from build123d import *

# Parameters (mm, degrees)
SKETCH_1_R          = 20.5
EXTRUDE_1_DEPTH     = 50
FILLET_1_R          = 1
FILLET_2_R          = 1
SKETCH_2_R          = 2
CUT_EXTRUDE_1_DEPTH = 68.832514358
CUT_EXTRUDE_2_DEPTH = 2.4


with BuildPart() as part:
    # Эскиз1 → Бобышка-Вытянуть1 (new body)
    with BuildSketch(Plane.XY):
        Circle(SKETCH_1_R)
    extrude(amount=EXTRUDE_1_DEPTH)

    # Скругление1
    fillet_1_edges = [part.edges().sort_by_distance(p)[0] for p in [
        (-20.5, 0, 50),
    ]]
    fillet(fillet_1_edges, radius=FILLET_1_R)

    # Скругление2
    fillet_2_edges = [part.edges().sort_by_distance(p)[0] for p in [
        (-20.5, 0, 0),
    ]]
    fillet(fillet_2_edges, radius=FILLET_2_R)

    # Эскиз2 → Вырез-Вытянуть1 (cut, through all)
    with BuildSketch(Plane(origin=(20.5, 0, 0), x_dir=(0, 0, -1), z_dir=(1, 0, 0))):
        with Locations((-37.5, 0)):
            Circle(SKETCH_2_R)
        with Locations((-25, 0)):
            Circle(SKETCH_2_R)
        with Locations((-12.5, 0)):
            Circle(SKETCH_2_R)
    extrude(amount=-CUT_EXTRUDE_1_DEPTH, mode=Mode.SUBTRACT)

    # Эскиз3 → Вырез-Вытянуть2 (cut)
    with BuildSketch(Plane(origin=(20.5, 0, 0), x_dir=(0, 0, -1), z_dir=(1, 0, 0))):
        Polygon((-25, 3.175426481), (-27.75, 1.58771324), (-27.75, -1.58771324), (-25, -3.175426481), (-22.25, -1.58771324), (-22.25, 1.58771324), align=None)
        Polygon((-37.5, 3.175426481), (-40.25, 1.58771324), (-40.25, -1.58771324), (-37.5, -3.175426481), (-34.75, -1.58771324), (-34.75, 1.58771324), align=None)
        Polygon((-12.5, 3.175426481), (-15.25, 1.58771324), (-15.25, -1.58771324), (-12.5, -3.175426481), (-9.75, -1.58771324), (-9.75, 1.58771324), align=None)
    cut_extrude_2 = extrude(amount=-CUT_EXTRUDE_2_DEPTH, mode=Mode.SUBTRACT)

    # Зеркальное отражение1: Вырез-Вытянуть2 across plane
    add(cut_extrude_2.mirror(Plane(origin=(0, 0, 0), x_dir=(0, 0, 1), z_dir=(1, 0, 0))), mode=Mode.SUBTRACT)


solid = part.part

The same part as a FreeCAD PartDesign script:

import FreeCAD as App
import Part
import Sketcher

V = App.Vector
Q = App.Units.Quantity


def edges_at(feature, points):
    """Names of the edges that pass closest to the given points."""
    edges = feature.Shape.Edges
    near = lambda p: min(range(len(edges)), key=lambda i: edges[i].distToShape(Part.Vertex(*p))[0])
    return sorted({f"Edge{near(p) + 1}" for p in points})

doc = App.newDocument("Part")
params = doc.addObject("Spreadsheet::Sheet", "Params")
for row, (alias, value) in enumerate([
    ("sketch1_diameter", "41 mm"),
    ("pad1_length", "50 mm"),
    ("fillet_radius", "1 mm"),
    ("fillet2_radius", "1 mm"),
    ("sketch2_diameter", "4 mm"),
    ("pocket2_length", "2.4 mm"),
], start=1):
    params.set(f"A{row}", alias)
    params.set(f"B{row}", "=" + value)
    params.setAlias(f"B{row}", alias)

body = doc.addObject("PartDesign::Body", "Body")

# Sketch on XY plane
sketch1 = doc.addObject("Sketcher::SketchObject", "Sketch")
body.addObject(sketch1)
sketch1.AttachmentSupport = (doc.XY_Plane, [""])
sketch1.MapMode = "FlatFace"
sketch1.addGeometry(Part.Circle(V(0, 0, 0), V(0, 0, 1), 20.5), False)
sketch1.addConstraint(Sketcher.Constraint("Coincident", 0, 3, -1, 1))
sketch1.addConstraint(Sketcher.Constraint("Diameter", 0, 41.0))
sketch1.setExpression("Constraints[1]", "Params.sketch1_diameter")
pad1 = doc.addObject("PartDesign::Pad", "Pad")
body.addObject(pad1)
pad1.Profile = sketch1
pad1.setExpression("Length", "Params.pad1_length")
doc.recompute()

fillet = doc.addObject("PartDesign::Fillet", "Fillet")
body.addObject(fillet)
fillet.Base = (pad1, edges_at(pad1, [(-20.5, 0, 50)]))
fillet.setExpression("Radius", "Params.fillet_radius")
doc.recompute()

fillet2 = doc.addObject("PartDesign::Fillet", "Fillet001")
body.addObject(fillet2)
fillet2.Base = (fillet, edges_at(fillet, [(-20.5, 0, 0)]))
fillet2.setExpression("Radius", "Params.fillet2_radius")

# Sketch on YZ plane
sketch2 = doc.addObject("Sketcher::SketchObject", "Sketch001")
body.addObject(sketch2)
sketch2.AttachmentSupport = (doc.YZ_Plane, [""])
sketch2.MapMode = "FlatFace"
sketch2.AttachmentOffset = App.Placement(V(0, 0, 20.5), App.Rotation())
sketch2.addGeometry(Part.Circle(V(0, 37.5, 0), V(0, 0, 1), 2), False)
sketch2.addGeometry(Part.Circle(V(0, 25, 0), V(0, 0, 1), 2), False)
sketch2.addGeometry(Part.Circle(V(0, 12.5, 0), V(0, 0, 1), 2), False)
sketch2.addConstraint(Sketcher.Constraint("Equal", 0, 1))
sketch2.addConstraint(Sketcher.Constraint("Equal", 1, 2))
sketch2.addConstraint(Sketcher.Constraint("PointOnObject", 0, 3, -2))
sketch2.addConstraint(Sketcher.Constraint("PointOnObject", 1, 3, -2))
sketch2.addConstraint(Sketcher.Constraint("PointOnObject", 2, 3, -2))
sketch2.addConstraint(Sketcher.Constraint("Diameter", 0, 4.0))
sketch2.addConstraint(Sketcher.Constraint("DistanceY", -1, 1, 1, 3, 25.0))
sketch2.addConstraint(Sketcher.Constraint("DistanceY", 2, 3, 0, 3, 25.0))
sketch2.addConstraint(Sketcher.Constraint("DistanceY", -1, 1, 0, 3, 37.5))
sketch2.setExpression("Constraints[5]", "Params.sketch2_diameter")
pocket1 = doc.addObject("PartDesign::Pocket", "Pocket")
body.addObject(pocket1)
pocket1.Profile = sketch2
pocket1.Type = "ThroughAll"

# Sketch on YZ plane
sketch3 = doc.addObject("Sketcher::SketchObject", "Sketch002")
body.addObject(sketch3)
sketch3.AttachmentSupport = (doc.YZ_Plane, [""])
sketch3.MapMode = "FlatFace"
sketch3.AttachmentOffset = App.Placement(V(0, 0, 20.5), App.Rotation())
sketch3.addGeometry(Part.LineSegment(V(3.175426, 25, 0), V(1.587713, 27.75, 0)), False)
sketch3.addGeometry(Part.LineSegment(V(1.587713, 27.75, 0), V(-1.587713, 27.75, 0)), False)
sketch3.addGeometry(Part.LineSegment(V(-1.587713, 27.75, 0), V(-3.175426, 25, 0)), False)
sketch3.addGeometry(Part.LineSegment(V(-3.175426, 25, 0), V(-1.587713, 22.25, 0)), False)
sketch3.addGeometry(Part.LineSegment(V(-1.587713, 22.25, 0), V(1.587713, 22.25, 0)), False)
sketch3.addGeometry(Part.LineSegment(V(1.587713, 22.25, 0), V(3.175426, 25, 0)), False)
sketch3.addGeometry(Part.LineSegment(V(3.175426, 37.5, 0), V(1.587713, 40.25, 0)), False)
sketch3.addGeometry(Part.LineSegment(V(1.587713, 40.25, 0), V(-1.587713, 40.25, 0)), False)
sketch3.addGeometry(Part.LineSegment(V(-1.587713, 40.25, 0), V(-3.175426, 37.5, 0)), False)
sketch3.addGeometry(Part.LineSegment(V(-3.175426, 37.5, 0), V(-1.587713, 34.75, 0)), False)
sketch3.addGeometry(Part.LineSegment(V(-1.587713, 34.75, 0), V(1.587713, 34.75, 0)), False)
sketch3.addGeometry(Part.LineSegment(V(1.587713, 34.75, 0), V(3.175426, 37.5, 0)), False)
sketch3.addGeometry(Part.LineSegment(V(3.175426, 12.5, 0), V(1.587713, 15.25, 0)), False)
sketch3.addGeometry(Part.LineSegment(V(1.587713, 15.25, 0), V(-1.587713, 15.25, 0)), False)
sketch3.addGeometry(Part.LineSegment(V(-1.587713, 15.25, 0), V(-3.175426, 12.5, 0)), False)
sketch3.addGeometry(Part.LineSegment(V(-3.175426, 12.5, 0), V(-1.587713, 9.75, 0)), False)
sketch3.addGeometry(Part.LineSegment(V(-1.587713, 9.75, 0), V(1.587713, 9.75, 0)), False)
sketch3.addGeometry(Part.LineSegment(V(1.587713, 9.75, 0), V(3.175426, 12.5, 0)), False)
sketch3.addConstraint(Sketcher.Constraint("Coincident", 0, 2, 1, 1))
sketch3.addConstraint(Sketcher.Constraint("Coincident", 1, 2, 2, 1))
sketch3.addConstraint(Sketcher.Constraint("Coincident", 2, 2, 3, 1))
sketch3.addConstraint(Sketcher.Constraint("Coincident", 3, 2, 4, 1))
sketch3.addConstraint(Sketcher.Constraint("Coincident", 4, 2, 5, 1))
sketch3.addConstraint(Sketcher.Constraint("Coincident", 5, 2, 0, 1))
sketch3.addConstraint(Sketcher.Constraint("Coincident", 6, 2, 7, 1))
sketch3.addConstraint(Sketcher.Constraint("Coincident", 7, 2, 8, 1))
sketch3.addConstraint(Sketcher.Constraint("Coincident", 8, 2, 9, 1))
sketch3.addConstraint(Sketcher.Constraint("Coincident", 9, 2, 10, 1))
sketch3.addConstraint(Sketcher.Constraint("Coincident", 10, 2, 11, 1))
sketch3.addConstraint(Sketcher.Constraint("Coincident", 11, 2, 6, 1))
sketch3.addConstraint(Sketcher.Constraint("Coincident", 12, 2, 13, 1))
sketch3.addConstraint(Sketcher.Constraint("Coincident", 13, 2, 14, 1))
sketch3.addConstraint(Sketcher.Constraint("Coincident", 14, 2, 15, 1))
sketch3.addConstraint(Sketcher.Constraint("Coincident", 15, 2, 16, 1))
sketch3.addConstraint(Sketcher.Constraint("Coincident", 16, 2, 17, 1))
sketch3.addConstraint(Sketcher.Constraint("Coincident", 17, 2, 12, 1))
sketch3.addConstraint(Sketcher.Constraint("Horizontal", 1))
sketch3.addConstraint(Sketcher.Constraint("Horizontal", 4))
sketch3.addConstraint(Sketcher.Constraint("Horizontal", 7))
sketch3.addConstraint(Sketcher.Constraint("Horizontal", 10))
sketch3.addConstraint(Sketcher.Constraint("Horizontal", 13))
sketch3.addConstraint(Sketcher.Constraint("Horizontal", 16))
sketch3.addConstraint(Sketcher.Constraint("Symmetric", 2, 2, 5, 2, -2))
sketch3.addConstraint(Sketcher.Constraint("Symmetric", 8, 2, 11, 2, -2))
sketch3.addConstraint(Sketcher.Constraint("Symmetric", 14, 2, 17, 2, -2))
sketch3.addConstraint(Sketcher.Constraint("Parallel", 0, 3))
sketch3.addConstraint(Sketcher.Constraint("Parallel", 2, 5))
sketch3.addConstraint(Sketcher.Constraint("Parallel", 3, 6))
sketch3.addConstraint(Sketcher.Constraint("Parallel", 5, 8))
sketch3.addConstraint(Sketcher.Constraint("Parallel", 6, 9))
sketch3.addConstraint(Sketcher.Constraint("Parallel", 8, 11))
sketch3.addConstraint(Sketcher.Constraint("Parallel", 9, 12))
sketch3.addConstraint(Sketcher.Constraint("Parallel", 11, 14))
sketch3.addConstraint(Sketcher.Constraint("Parallel", 12, 15))
sketch3.addConstraint(Sketcher.Constraint("Parallel", 14, 17))
sketch3.addConstraint(Sketcher.Constraint("Vertical", 1, 2, 3, 2))
sketch3.addConstraint(Sketcher.Constraint("Vertical", 0, 2, 4, 2))
sketch3.addConstraint(Sketcher.Constraint("Vertical", 4, 2, 6, 2))
sketch3.addConstraint(Sketcher.Constraint("Vertical", 2, 2, 8, 2))
sketch3.addConstraint(Sketcher.Constraint("Vertical", 7, 2, 9, 2))
sketch3.addConstraint(Sketcher.Constraint("Vertical", 10, 2, 12, 2))
sketch3.addConstraint(Sketcher.Constraint("Vertical", 8, 2, 14, 2))
sketch3.addConstraint(Sketcher.Constraint("Vertical", 13, 2, 15, 2))
sketch3.addConstraint(Sketcher.Constraint("Angle", 0, Q("120 deg")))
sketch3.addConstraint(Sketcher.Constraint("DistanceY", -1, 1, 2, 2, 25.0))
sketch3.addConstraint(Sketcher.Constraint("DistanceY", 4, 2, 6, 2, 18.0))
sketch3.addConstraint(Sketcher.Constraint("DistanceY", 1, 2, 9, 2, 7.0))
sketch3.addConstraint(Sketcher.Constraint("DistanceY", 12, 2, 4, 2, 7.0))
sketch3.addConstraint(Sketcher.Constraint("DistanceX", 1, 2, 1, 1, 3.175426))
pocket2 = doc.addObject("PartDesign::Pocket", "Pocket001")
body.addObject(pocket2)
pocket2.Profile = sketch3
pocket2.setExpression("Length", "Params.pocket2_length")
doc.recompute()

mirrored = doc.addObject("PartDesign::Mirrored", "Mirrored")
body.addObject(mirrored)
mirrored.Originals = [pocket2]
mirrored.MirrorPlane = (doc.YZ_Plane, [""])
body.Tip = mirrored

doc.recompute()
